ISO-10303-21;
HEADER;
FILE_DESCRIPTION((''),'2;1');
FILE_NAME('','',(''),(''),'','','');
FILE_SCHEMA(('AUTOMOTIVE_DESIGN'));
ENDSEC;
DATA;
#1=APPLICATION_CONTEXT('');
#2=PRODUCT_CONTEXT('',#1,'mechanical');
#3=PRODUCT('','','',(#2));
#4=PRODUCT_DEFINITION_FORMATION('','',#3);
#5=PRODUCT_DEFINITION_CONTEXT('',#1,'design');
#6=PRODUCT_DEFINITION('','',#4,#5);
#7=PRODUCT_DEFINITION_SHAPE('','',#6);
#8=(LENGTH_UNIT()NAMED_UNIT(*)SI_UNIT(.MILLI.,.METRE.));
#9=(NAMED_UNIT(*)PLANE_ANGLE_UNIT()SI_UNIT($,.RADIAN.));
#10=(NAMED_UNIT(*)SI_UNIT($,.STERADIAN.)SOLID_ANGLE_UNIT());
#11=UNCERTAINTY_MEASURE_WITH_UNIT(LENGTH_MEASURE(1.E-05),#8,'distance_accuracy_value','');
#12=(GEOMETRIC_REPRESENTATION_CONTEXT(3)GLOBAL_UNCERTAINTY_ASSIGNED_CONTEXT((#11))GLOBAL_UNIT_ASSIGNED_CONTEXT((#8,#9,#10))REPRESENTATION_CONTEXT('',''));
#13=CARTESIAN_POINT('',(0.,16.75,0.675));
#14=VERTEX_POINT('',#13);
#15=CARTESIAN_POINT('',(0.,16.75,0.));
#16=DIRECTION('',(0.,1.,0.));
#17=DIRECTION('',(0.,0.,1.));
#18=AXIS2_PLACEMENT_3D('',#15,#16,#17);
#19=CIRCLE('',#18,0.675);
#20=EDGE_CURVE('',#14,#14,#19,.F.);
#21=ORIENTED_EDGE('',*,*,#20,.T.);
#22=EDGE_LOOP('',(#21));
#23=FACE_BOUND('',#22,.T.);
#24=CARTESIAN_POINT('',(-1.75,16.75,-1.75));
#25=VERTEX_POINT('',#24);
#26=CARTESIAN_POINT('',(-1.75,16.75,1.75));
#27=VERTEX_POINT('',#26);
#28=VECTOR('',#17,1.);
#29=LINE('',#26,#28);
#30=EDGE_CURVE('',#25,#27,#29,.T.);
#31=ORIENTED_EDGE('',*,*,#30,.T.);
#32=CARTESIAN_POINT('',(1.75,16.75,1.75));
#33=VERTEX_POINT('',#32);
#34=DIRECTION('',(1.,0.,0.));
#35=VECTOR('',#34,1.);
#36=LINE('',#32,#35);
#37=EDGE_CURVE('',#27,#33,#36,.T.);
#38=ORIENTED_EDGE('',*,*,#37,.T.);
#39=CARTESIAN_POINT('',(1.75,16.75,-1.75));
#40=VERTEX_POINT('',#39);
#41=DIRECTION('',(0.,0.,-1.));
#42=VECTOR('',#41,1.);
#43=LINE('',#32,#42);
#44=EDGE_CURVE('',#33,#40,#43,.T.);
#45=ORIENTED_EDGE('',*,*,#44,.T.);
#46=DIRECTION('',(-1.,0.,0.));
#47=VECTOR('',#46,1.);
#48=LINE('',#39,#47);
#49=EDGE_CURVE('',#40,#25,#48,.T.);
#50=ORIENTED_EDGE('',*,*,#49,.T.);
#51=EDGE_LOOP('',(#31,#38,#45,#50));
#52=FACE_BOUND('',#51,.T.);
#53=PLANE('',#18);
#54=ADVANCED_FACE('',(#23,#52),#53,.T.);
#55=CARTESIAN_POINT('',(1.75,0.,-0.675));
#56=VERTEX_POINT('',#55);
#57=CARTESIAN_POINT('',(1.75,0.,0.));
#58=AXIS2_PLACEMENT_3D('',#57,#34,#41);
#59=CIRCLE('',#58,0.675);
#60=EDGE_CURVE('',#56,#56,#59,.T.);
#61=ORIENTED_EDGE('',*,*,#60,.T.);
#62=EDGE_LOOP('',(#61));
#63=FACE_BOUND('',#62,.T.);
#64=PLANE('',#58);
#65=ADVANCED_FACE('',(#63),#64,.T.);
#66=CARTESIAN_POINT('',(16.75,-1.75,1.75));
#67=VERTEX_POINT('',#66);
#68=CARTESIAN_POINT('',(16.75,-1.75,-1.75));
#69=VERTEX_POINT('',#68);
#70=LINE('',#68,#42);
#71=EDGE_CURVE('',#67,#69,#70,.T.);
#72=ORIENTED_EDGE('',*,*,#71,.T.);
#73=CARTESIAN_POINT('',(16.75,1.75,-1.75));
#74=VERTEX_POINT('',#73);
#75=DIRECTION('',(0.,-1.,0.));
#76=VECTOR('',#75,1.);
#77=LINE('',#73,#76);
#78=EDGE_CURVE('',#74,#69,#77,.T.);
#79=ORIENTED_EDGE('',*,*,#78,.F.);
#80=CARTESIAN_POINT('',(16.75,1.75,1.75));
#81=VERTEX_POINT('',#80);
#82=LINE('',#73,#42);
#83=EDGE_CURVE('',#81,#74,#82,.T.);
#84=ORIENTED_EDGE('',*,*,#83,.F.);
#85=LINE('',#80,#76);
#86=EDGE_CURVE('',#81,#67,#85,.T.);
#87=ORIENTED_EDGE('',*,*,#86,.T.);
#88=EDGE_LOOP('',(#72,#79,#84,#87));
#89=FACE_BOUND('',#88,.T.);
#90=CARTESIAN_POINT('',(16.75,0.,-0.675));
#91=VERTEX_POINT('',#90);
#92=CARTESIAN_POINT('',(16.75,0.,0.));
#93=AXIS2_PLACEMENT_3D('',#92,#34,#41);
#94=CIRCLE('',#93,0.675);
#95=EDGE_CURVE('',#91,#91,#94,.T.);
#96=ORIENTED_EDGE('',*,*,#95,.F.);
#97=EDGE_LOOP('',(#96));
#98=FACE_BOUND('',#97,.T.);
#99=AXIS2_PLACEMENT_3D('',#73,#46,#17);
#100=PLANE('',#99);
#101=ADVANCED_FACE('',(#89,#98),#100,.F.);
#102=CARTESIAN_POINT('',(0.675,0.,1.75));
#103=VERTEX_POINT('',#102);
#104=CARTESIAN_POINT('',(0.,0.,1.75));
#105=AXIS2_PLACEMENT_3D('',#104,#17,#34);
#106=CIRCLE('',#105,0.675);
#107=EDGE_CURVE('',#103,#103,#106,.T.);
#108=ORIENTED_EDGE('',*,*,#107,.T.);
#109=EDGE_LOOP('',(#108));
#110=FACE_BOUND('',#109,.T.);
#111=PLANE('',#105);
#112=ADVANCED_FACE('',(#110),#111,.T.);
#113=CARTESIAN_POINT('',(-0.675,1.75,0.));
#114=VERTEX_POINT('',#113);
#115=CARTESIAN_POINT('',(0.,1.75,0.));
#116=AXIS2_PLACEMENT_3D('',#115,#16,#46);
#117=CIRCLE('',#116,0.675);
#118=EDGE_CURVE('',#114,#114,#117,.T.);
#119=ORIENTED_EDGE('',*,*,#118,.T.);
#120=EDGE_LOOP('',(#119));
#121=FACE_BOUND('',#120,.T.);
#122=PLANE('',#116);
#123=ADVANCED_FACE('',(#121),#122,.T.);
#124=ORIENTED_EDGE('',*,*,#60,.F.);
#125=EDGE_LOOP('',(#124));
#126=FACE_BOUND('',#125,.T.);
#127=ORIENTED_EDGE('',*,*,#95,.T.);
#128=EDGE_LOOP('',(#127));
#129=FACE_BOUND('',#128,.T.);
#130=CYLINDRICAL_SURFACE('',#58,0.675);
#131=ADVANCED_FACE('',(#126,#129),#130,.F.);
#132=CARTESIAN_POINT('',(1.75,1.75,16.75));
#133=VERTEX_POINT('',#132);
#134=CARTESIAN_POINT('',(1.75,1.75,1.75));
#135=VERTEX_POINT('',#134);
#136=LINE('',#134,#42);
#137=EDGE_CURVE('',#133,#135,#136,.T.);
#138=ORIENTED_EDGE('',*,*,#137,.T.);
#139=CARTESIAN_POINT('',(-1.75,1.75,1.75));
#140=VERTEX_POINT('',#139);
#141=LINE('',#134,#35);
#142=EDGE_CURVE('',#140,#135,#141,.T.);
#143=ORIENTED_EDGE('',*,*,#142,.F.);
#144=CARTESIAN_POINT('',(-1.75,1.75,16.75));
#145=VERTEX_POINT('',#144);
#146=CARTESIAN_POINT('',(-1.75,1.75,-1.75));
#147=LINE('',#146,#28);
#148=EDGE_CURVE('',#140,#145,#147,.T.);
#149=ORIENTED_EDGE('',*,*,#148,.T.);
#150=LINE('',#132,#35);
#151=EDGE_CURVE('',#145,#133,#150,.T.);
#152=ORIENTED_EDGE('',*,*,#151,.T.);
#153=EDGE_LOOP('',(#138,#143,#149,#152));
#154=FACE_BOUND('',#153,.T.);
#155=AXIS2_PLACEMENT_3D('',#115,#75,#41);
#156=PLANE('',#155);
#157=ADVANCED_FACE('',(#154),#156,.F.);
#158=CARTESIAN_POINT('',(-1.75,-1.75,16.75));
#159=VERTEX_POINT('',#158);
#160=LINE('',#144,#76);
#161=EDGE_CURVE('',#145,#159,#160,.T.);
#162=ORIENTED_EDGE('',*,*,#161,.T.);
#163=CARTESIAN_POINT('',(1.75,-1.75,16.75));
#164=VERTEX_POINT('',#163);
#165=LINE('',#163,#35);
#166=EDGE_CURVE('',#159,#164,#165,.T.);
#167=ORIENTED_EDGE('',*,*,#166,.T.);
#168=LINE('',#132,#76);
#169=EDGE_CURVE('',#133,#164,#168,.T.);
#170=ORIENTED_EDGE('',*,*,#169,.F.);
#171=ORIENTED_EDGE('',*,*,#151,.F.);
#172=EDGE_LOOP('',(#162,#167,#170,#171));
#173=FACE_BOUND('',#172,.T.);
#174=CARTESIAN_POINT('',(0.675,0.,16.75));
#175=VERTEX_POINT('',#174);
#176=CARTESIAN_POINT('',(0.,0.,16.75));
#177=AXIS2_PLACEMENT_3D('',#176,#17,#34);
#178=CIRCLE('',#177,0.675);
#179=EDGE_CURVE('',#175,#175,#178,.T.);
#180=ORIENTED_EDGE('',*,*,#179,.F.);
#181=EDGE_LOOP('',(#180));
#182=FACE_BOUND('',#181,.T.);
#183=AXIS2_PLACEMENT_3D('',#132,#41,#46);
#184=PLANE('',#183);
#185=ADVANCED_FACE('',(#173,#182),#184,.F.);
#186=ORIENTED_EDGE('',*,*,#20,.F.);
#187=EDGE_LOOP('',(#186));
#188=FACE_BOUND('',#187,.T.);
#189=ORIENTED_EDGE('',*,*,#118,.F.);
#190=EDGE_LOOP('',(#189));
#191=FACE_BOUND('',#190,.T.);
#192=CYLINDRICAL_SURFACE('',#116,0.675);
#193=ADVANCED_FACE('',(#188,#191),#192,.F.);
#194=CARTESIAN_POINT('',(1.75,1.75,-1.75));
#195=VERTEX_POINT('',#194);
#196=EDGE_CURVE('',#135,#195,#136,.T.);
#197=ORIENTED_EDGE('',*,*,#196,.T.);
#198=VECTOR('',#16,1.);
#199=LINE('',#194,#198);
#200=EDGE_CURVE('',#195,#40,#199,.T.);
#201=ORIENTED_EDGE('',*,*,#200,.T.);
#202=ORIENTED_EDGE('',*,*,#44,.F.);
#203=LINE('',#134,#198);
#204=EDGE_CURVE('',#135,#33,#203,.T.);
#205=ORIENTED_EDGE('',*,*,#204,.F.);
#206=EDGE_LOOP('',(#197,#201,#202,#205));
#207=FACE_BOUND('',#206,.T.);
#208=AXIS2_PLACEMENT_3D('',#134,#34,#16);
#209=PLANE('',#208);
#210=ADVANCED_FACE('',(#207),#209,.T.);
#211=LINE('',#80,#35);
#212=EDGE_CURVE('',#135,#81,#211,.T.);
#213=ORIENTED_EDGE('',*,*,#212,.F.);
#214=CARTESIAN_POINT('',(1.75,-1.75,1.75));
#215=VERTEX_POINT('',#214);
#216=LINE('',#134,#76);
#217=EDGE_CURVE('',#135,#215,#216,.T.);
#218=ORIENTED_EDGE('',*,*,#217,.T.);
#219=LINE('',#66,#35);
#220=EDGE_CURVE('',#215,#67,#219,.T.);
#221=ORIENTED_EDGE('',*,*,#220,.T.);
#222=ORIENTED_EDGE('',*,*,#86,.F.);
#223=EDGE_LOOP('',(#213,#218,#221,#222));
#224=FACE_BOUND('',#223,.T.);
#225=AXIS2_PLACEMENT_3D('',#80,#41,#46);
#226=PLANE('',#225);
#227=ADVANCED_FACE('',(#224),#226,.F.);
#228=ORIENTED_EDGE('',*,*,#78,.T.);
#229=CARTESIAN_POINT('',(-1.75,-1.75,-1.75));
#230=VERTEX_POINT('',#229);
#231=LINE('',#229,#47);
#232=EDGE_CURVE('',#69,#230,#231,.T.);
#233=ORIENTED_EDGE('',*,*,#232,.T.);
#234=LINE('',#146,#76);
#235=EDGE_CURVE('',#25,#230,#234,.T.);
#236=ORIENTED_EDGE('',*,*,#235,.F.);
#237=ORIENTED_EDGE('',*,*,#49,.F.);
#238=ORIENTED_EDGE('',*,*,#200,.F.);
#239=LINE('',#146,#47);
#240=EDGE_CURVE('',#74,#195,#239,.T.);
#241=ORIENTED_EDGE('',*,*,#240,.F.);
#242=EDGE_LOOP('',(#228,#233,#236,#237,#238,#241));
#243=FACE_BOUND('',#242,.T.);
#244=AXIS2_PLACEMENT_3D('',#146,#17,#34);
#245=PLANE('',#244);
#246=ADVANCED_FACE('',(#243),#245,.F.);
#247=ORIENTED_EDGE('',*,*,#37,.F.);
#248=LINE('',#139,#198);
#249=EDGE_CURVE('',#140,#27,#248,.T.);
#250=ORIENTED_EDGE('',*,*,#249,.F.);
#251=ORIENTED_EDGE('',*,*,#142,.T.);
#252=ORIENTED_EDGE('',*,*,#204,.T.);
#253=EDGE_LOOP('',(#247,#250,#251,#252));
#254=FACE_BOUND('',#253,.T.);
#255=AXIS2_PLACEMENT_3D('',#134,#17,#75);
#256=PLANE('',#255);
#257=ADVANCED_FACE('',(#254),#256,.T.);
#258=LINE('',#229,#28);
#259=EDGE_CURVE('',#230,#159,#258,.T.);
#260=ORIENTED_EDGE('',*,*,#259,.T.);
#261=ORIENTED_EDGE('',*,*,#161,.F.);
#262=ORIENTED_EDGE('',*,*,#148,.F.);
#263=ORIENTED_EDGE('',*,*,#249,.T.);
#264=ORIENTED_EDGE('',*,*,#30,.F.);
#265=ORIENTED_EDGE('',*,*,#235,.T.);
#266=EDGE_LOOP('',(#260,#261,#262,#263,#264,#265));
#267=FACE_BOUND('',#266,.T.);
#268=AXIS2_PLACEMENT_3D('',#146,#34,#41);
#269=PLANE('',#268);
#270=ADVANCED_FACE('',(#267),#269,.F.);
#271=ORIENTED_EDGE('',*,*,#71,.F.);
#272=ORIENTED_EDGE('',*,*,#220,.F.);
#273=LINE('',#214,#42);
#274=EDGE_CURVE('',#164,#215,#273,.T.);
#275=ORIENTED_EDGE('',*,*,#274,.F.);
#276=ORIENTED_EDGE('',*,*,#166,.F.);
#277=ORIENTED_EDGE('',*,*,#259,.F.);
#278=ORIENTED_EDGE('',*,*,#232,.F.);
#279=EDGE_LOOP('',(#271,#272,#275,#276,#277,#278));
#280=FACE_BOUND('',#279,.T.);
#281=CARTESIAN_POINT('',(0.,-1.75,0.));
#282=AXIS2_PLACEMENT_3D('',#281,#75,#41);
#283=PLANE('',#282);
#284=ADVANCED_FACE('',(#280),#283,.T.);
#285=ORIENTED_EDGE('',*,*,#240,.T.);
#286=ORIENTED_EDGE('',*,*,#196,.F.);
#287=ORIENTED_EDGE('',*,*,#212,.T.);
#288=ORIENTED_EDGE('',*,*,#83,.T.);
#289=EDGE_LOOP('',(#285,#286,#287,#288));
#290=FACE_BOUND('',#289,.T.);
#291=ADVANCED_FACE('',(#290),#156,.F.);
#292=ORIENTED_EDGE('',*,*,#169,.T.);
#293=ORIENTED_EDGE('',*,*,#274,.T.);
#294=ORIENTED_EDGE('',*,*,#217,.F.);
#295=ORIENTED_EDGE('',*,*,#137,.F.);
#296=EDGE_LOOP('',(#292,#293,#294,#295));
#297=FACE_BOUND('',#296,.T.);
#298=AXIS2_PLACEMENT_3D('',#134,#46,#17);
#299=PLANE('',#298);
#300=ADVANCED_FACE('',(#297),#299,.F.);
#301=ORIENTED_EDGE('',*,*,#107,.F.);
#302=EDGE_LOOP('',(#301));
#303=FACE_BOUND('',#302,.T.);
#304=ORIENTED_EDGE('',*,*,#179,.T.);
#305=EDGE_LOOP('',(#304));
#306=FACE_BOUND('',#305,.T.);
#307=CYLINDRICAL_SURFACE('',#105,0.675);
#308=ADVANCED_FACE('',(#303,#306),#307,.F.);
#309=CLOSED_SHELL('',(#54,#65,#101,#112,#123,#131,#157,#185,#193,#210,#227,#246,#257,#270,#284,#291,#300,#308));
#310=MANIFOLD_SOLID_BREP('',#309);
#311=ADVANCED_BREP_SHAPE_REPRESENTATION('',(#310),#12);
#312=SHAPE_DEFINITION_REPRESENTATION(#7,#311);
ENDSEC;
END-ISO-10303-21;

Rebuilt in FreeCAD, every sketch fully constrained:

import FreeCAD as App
import Part
import Sketcher

V = App.Vector

doc = App.newDocument("Part")
body = doc.addObject("PartDesign::Body", "Body")

# Sketch on XZ plane
sketch1 = doc.addObject("Sketcher::SketchObject", "Sketch")
body.addObject(sketch1)
sketch1.AttachmentSupport = (doc.XZ_Plane, [""])
sketch1.MapMode = "FlatFace"
sketch1.addGeometry(Part.LineSegment(V(-1.75, -1.75, 0), V(-1.75, 16.75, 0)), False)
sketch1.addGeometry(Part.LineSegment(V(-1.75, 16.75, 0), V(1.75, 16.75, 0)), False)
sketch1.addGeometry(Part.LineSegment(V(1.75, 16.75, 0), V(1.75, 1.75, 0)), False)
sketch1.addGeometry(Part.LineSegment(V(1.75, 1.75, 0), V(16.75, 1.75, 0)), False)
sketch1.addGeometry(Part.LineSegment(V(16.75, 1.75, 0), V(16.75, -1.75, 0)), False)
sketch1.addGeometry(Part.LineSegment(V(16.75, -1.75, 0), V(-1.75, -1.75, 0)), False)
sketch1.addConstraint(Sketcher.Constraint("Coincident", 0, 2, 1, 1))
sketch1.addConstraint(Sketcher.Constraint("Coincident", 1, 2, 2, 1))
sketch1.addConstraint(Sketcher.Constraint("Coincident", 2, 2, 3, 1))
sketch1.addConstraint(Sketcher.Constraint("Coincident", 3, 2, 4, 1))
sketch1.addConstraint(Sketcher.Constraint("Coincident", 4, 2, 5, 1))
sketch1.addConstraint(Sketcher.Constraint("Coincident", 5, 2, 0, 1))
sketch1.addConstraint(Sketcher.Constraint("Vertical", 0))
sketch1.addConstraint(Sketcher.Constraint("Horizontal", 1))
sketch1.addConstraint(Sketcher.Constraint("Vertical", 2))
sketch1.addConstraint(Sketcher.Constraint("Horizontal", 3))
sketch1.addConstraint(Sketcher.Constraint("Vertical", 4))
sketch1.addConstraint(Sketcher.Constraint("Horizontal", 5))
sketch1.addConstraint(Sketcher.Constraint("Symmetric", 2, 2, 5, 2, -1, 1))
sketch1.addConstraint(Sketcher.Constraint("Equal", 5, 0))
sketch1.addConstraint(Sketcher.Constraint("Equal", 3, 2))
sketch1.addConstraint(Sketcher.Constraint("DistanceX", 3, 1, 3, 2, 15.0))
sketch1.addConstraint(Sketcher.Constraint("DistanceX", 1, 1, 1, 2, 3.5))
pad1 = doc.addObject("PartDesign::Pad", "Pad")
body.addObject(pad1)
pad1.Profile = sketch1
pad1.Length = 3.5
pad1.Midplane = True

# Sketch on XY plane
sketch2 = doc.addObject("Sketcher::SketchObject", "Sketch001")
body.addObject(sketch2)
sketch2.AttachmentSupport = (doc.XY_Plane, [""])
sketch2.MapMode = "FlatFace"
sketch2.AttachmentOffset = App.Placement(V(0, 0, 16.75), App.Rotation())
sketch2.addGeometry(Part.Circle(V(0, 0, 0), V(0, 0, 1), 0.675), False)
sketch2.addConstraint(Sketcher.Constraint("Coincident", 0, 3, -1, 1))
sketch2.addConstraint(Sketcher.Constraint("Diameter", 0, 1.35))
pocket1 = doc.addObject("PartDesign::Pocket", "Pocket")
body.addObject(pocket1)
pocket1.Profile = sketch2
pocket1.Length = 15

# Sketch on YZ plane
sketch3 = doc.addObject("Sketcher::SketchObject", "Sketch002")
body.addObject(sketch3)
sketch3.AttachmentSupport = (doc.YZ_Plane, [""])
sketch3.MapMode = "FlatFace"
sketch3.AttachmentOffset = App.Placement(V(0, 0, 16.75), App.Rotation())
sketch3.addGeometry(Part.Circle(V(0, 0, 0), V(0, 0, 1), 0.675), False)
sketch3.addConstraint(Sketcher.Constraint("Coincident", 0, 3, -1, 1))
sketch3.addConstraint(Sketcher.Constraint("Diameter", 0, 1.35))
pocket2 = doc.addObject("PartDesign::Pocket", "Pocket001")
body.addObject(pocket2)
pocket2.Profile = sketch3
pocket2.Length = 15

# Sketch on XZ plane
sketch4 = doc.addObject("Sketcher::SketchObject", "Sketch003")
body.addObject(sketch4)
sketch4.AttachmentSupport = (doc.XZ_Plane, [""])
sketch4.MapMode = "FlatFace"
sketch4.AttachmentOffset = App.Placement(V(0, 0, -1.75), App.Rotation())
sketch4.addGeometry(Part.LineSegment(V(-1.75, -1.75, 0), V(-1.75, 1.75, 0)), False)
sketch4.addGeometry(Part.LineSegment(V(-1.75, 1.75, 0), V(1.75, 1.75, 0)), False)
sketch4.addGeometry(Part.LineSegment(V(1.75, 1.75, 0), V(1.75, -1.75, 0)), False)
sketch4.addGeometry(Part.LineSegment(V(1.75, -1.75, 0), V(-1.75, -1.75, 0)), False)
sketch4.addConstraint(Sketcher.Constraint("Coincident", 0, 2, 1, 1))
sketch4.addConstraint(Sketcher.Constraint("Coincident", 1, 2, 2, 1))
sketch4.addConstraint(Sketcher.Constraint("Coincident", 2, 2, 3, 1))
sketch4.addConstraint(Sketcher.Constraint("Coincident", 3, 2, 0, 1))
sketch4.addConstraint(Sketcher.Constraint("Vertical", 0))
sketch4.addConstraint(Sketcher.Constraint("Horizontal", 1))
sketch4.addConstraint(Sketcher.Constraint("Vertical", 2))
sketch4.addConstraint(Sketcher.Constraint("Horizontal", 3))
sketch4.addConstraint(Sketcher.Constraint("Symmetric", 0, 2, 2, 2, -1, 1))
sketch4.addConstraint(Sketcher.Constraint("Equal", 3, 0))
sketch4.addConstraint(Sketcher.Constraint("DistanceX", 1, 1, 1, 2, 3.5))

# Sketch on XY plane
sketch5 = doc.addObject("Sketcher::SketchObject", "Sketch004")
body.addObject(sketch5)
sketch5.AttachmentSupport = (doc.XY_Plane, [""])
sketch5.MapMode = "FlatFace"
sketch5.addGeometry(Part.LineSegment(V(0, 1.75, 0), V(0, 16.75, 0)), False)
sketch5.addConstraint(Sketcher.Constraint("Vertical", 0))
sketch5.addConstraint(Sketcher.Constraint("PointOnObject", 0, 1, -2))
sketch5.addConstraint(Sketcher.Constraint("DistanceY", 0, 1, 0, 2, 15.0))
sketch5.addConstraint(Sketcher.Constraint("DistanceY", -1, 1, 0, 1, 1.75))
doc.recompute()

additivepipe = doc.addObject("PartDesign::AdditivePipe", "AdditivePipe")
body.addObject(additivepipe)
additivepipe.Profile = sketch4
additivepipe.Spine = (sketch5, ["Edge1"])

# Sketch on XZ plane
sketch6 = doc.addObject("Sketcher::SketchObject", "Sketch005")
body.addObject(sketch6)
sketch6.AttachmentSupport = (doc.XZ_Plane, [""])
sketch6.MapMode = "FlatFace"
sketch6.AttachmentOffset = App.Placement(V(0, 0, -1.75), App.Rotation())
sketch6.addGeometry(Part.Circle(V(0, 0, 0), V(0, 0, 1), 0.675), False)
sketch6.addConstraint(Sketcher.Constraint("Coincident", 0, 3, -1, 1))
sketch6.addConstraint(Sketcher.Constraint("Diameter", 0, 1.35))

# Sketch on XY plane
sketch7 = doc.addObject("Sketcher::SketchObject", "Sketch006")
body.addObject(sketch7)
sketch7.AttachmentSupport = (doc.XY_Plane, [""])
sketch7.MapMode = "FlatFace"
sketch7.addGeometry(Part.LineSegment(V(0, 1.75, 0), V(0, 16.75, 0)), False)
sketch7.addConstraint(Sketcher.Constraint("Vertical", 0))
sketch7.addConstraint(Sketcher.Constraint("PointOnObject", 0, 1, -2))
sketch7.addConstraint(Sketcher.Constraint("DistanceY", 0, 1, 0, 2, 15.0))
sketch7.addConstraint(Sketcher.Constraint("DistanceY", -1, 1, 0, 1, 1.75))
doc.recompute()

subtractivepipe = doc.addObject("PartDesign::SubtractivePipe", "SubtractivePipe")
body.addObject(subtractivepipe)
subtractivepipe.Profile = sketch6
subtractivepipe.Spine = (sketch7, ["Edge1"])

doc.recompute()
